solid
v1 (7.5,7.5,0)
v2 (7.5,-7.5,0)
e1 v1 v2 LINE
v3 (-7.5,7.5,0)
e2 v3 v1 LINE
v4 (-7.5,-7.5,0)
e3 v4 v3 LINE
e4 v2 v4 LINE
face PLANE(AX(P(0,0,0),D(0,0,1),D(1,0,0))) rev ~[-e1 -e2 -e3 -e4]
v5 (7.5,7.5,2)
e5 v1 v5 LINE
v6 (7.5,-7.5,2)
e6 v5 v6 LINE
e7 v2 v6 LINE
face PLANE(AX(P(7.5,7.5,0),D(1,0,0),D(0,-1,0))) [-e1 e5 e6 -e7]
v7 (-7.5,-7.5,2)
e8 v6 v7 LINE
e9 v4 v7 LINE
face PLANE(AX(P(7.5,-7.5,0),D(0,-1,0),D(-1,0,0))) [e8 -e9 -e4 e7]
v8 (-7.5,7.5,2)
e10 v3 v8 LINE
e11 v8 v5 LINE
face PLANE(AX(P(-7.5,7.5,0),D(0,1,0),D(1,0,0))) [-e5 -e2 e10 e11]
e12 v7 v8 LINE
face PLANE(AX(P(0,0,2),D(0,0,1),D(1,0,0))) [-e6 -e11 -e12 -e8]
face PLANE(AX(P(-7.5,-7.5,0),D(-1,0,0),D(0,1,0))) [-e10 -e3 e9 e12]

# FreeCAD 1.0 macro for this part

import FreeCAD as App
import Part
import Sketcher
from FreeCAD import Vector


def add_polygon(sketch, points):
    """Adds a closed chain of lines whose ends are joined by coincident constraints."""
    first, n = sketch.GeometryCount, len(points)
    for a, b in zip(points, points[1:] + points[:1]):
        sketch.addGeometry(Part.LineSegment(App.Vector(*a, 0), App.Vector(*b, 0)), False)
    for i in range(n):
        sketch.addConstraint(Sketcher.Constraint("Coincident", first + i, 2, first + (i + 1) % n, 1))

doc = App.newDocument("Part")
body = doc.addObject("PartDesign::Body", "Body")

sketch1 = body.newObject("Sketcher::SketchObject", "Sketch")
sketch1.AttachmentSupport = (doc.getObject("XY_Plane"), [""])
sketch1.MapMode = "FlatFace"
add_polygon(sketch1, [(7.5, 7.5), (-7.5, 7.5), (-7.5, -7.5), (7.5, -7.5)])
sketch1.addConstraint([
    Sketcher.Constraint("Horizontal", 0),
    Sketcher.Constraint("Vertical", 1),
    Sketcher.Constraint("Horizontal", 2),
    Sketcher.Constraint("Vertical", 3),
    Sketcher.Constraint("Symmetric", 0, 2, 2, 2, -1, 1),
    Sketcher.Constraint("Equal", 2, 1),
    Sketcher.Constraint("DistanceX", 0, 2, 0, 1, 15.0),
])
pad1 = body.newObject("PartDesign::Pad", "Pad")
pad1.Profile = sketch1
pad1.Length = 2

doc.recompute()
